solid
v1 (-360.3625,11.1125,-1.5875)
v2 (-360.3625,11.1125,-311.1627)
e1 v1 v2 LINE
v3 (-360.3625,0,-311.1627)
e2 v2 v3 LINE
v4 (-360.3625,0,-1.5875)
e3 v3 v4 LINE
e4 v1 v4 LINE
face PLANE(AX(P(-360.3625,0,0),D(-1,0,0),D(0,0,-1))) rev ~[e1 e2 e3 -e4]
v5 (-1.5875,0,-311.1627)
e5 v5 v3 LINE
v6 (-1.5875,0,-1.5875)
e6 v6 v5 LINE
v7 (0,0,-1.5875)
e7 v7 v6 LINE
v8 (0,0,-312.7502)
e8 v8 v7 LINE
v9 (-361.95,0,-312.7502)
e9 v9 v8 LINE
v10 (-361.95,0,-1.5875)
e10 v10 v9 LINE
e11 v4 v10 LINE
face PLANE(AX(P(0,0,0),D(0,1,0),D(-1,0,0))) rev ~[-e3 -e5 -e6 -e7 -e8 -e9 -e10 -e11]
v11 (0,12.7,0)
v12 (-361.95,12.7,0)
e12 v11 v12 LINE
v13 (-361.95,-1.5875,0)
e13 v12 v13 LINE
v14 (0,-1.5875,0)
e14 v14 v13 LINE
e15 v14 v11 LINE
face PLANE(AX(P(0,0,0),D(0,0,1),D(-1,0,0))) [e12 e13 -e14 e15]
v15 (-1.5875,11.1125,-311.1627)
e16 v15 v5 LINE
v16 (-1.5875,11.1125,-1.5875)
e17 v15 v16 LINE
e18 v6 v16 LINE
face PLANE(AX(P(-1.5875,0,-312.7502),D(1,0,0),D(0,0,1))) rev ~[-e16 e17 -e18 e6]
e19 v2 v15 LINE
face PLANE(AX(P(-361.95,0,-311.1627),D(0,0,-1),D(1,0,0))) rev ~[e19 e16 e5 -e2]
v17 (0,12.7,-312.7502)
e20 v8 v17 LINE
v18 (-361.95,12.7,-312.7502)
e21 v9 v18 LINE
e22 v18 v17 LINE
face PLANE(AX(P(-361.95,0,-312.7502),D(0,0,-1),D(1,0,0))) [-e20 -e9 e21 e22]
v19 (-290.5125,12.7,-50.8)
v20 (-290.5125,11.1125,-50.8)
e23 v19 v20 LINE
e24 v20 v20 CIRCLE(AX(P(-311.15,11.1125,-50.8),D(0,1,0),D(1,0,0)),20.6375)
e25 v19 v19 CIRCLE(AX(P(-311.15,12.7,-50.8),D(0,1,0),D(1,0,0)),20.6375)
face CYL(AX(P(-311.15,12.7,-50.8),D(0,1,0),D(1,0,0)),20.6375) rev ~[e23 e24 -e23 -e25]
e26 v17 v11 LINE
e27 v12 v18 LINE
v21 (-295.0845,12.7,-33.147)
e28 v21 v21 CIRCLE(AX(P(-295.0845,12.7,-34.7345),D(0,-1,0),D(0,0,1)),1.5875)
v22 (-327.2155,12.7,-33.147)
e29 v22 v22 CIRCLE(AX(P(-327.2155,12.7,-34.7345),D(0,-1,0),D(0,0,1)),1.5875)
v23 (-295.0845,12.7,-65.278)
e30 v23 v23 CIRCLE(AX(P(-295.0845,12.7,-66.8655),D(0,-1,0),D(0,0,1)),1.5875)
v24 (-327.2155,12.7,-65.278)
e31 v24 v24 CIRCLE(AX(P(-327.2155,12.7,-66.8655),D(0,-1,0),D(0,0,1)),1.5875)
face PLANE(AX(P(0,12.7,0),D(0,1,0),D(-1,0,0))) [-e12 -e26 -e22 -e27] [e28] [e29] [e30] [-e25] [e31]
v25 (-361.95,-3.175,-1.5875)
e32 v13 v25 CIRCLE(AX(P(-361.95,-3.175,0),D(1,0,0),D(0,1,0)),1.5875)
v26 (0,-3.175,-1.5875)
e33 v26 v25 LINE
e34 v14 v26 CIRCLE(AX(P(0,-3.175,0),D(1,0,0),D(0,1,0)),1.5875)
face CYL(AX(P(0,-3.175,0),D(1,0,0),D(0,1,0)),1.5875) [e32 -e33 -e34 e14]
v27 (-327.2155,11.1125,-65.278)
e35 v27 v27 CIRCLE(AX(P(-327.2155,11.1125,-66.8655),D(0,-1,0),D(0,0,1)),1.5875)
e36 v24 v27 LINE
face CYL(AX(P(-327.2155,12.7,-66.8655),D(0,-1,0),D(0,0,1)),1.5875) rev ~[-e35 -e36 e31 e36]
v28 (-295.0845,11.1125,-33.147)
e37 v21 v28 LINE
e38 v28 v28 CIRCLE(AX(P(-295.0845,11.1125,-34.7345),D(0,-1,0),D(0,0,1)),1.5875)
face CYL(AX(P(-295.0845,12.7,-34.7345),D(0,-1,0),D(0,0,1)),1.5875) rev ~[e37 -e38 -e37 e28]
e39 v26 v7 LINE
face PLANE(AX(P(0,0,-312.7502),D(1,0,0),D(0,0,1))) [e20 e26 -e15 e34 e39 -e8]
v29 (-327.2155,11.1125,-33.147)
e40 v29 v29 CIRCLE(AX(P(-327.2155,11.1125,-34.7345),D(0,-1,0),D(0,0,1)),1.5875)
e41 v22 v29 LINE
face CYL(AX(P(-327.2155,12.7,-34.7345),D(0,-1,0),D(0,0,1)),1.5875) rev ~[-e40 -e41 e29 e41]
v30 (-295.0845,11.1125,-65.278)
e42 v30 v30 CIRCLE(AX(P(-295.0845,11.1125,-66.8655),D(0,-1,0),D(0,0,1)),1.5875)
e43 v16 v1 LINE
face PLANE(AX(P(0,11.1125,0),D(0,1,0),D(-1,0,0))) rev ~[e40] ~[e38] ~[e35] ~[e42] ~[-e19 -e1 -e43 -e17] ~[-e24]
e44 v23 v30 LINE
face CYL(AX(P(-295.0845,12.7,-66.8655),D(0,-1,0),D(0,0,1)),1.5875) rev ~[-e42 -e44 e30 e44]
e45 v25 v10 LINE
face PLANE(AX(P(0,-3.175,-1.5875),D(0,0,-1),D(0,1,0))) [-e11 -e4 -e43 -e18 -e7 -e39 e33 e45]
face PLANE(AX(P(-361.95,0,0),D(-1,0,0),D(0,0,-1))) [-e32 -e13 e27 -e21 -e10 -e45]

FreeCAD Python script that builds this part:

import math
import FreeCAD as App
import Part
import Sketcher
Q = App.Units.Quantity


def faces_at(feature, points):
    """Names of the faces that lie closest to the given points."""
    faces = feature.Shape.Faces
    near = lambda p: min(range(len(faces)), key=lambda i: faces[i].distToShape(Part.Vertex(*p))[0])
    return sorted({f"Face{near(p) + 1}" for p in points})

doc = App.newDocument("Part")
body = doc.addObject("PartDesign::Body", "Body")

sketch1 = body.newObject("Sketcher::SketchObject", "Sketch")
sketch1.AttachmentSupport = (doc.getObject("XZ_Plane"), [""])
sketch1.MapMode = "FlatFace"
sketch1.addGeometry([
    Part.LineSegment(App.Vector(-362, 0, 0), App.Vector(0, 0, 0)),
    Part.LineSegment(App.Vector(0, 0, 0), App.Vector(0, -313, 0)),
    Part.LineSegment(App.Vector(0, -313, 0), App.Vector(-362, -313, 0)),
    Part.LineSegment(App.Vector(-362, -313, 0), App.Vector(-362, 0, 0)),
], False)
sketch1.addConstraint([
    Sketcher.Constraint("Coincident", 0, 2, 1, 1),
    Sketcher.Constraint("Coincident", 1, 2, 2, 1),
    Sketcher.Constraint("Coincident", 2, 2, 3, 1),
    Sketcher.Constraint("Coincident", 3, 2, 0, 1),
    Sketcher.Constraint("Horizontal", 0),
    Sketcher.Constraint("Vertical", 1),
    Sketcher.Constraint("Horizontal", 2),
    Sketcher.Constraint("Vertical", 3),
    Sketcher.Constraint("Coincident", 0, 2, -1, 1),
    Sketcher.Constraint("DistanceX", 0, 1, 0, 2, Q("14.25 in")),
    Sketcher.Constraint("DistanceY", 1, 2, 1, 1, Q("12.313 in")),
])
pad1 = body.newObject("PartDesign::Pad", "Pad")
pad1.Profile = sketch1
pad1.Length = Q("0.5 in")
pad1.Reversed = True
doc.recompute()

thickness = body.newObject("PartDesign::Thickness", "Thickness")
thickness.Base = (pad1, faces_at(pad1, [(-120.65, 0, -104.25)]))
thickness.Value = Q("0.0625 in")
thickness.Reversed = True
thickness.Join = "Intersection"

sketch2 = body.newObject("Sketcher::SketchObject", "Sketch001")
sketch2.AttachmentSupport = (doc.getObject("YZ_Plane"), [""])
sketch2.MapMode = "FlatFace"
sketch2.addGeometry([
    Part.LineSegment(App.Vector(0, -1.6, 0), App.Vector(0, 0, 0)),
    Part.LineSegment(App.Vector(0, 0, 0), App.Vector(-1.6, 0, 0)),
    Part.ArcOfCircle(Part.Circle(App.Vector(-3.2, 0, 0), App.Vector(0, 0, 1), 1.6), math.radians(0), math.radians(270)),
    Part.LineSegment(App.Vector(-3.2, -1.6, 0), App.Vector(0, -1.6, 0)),
], False)
sketch2.addConstraint([
    Sketcher.Constraint("Coincident", 0, 2, 1, 1),
    Sketcher.Constraint("Coincident", 1, 2, 2, 1),
    Sketcher.Constraint("Tangent", 2, 2, 3, 1),
    Sketcher.Constraint("Coincident", 3, 2, 0, 1),
    Sketcher.Constraint("Vertical", 0),
    Sketcher.Constraint("Horizontal", 1),
    Sketcher.Constraint("Horizontal", 3),
    Sketcher.Constraint("Coincident", 0, 2, -1, 1),
    Sketcher.Constraint("PointOnObject", 2, 3, -1),
    Sketcher.Constraint("Equal", 1, 0),
    Sketcher.Constraint("Radius", 2, Q("0.0625 in")),
])
pad2 = body.newObject("PartDesign::Pad", "Pad001")
pad2.Profile = sketch2
pad2.Length = Q("14.25 in")
pad2.Reversed = True

sketch3 = body.newObject("Sketcher::SketchObject", "Sketch002")
sketch3.AttachmentSupport = (doc.getObject("XZ_Plane"), [""])
sketch3.MapMode = "FlatFace"
sketch3.AttachmentOffset = App.Placement(App.Vector(0, 0, -0.5 * 25.4), App.Rotation())
sketch3.addGeometry(Part.Circle(App.Vector(-311, -51, 0), App.Vector(0, 0, 1), 21), False)
sketch3.addConstraint([
    Sketcher.Constraint("Diameter", 0, Q("1.625 in")),
    Sketcher.Constraint("DistanceY", 0, 3, -1, 1, Q("2 in")),
    Sketcher.Constraint("DistanceX", 0, 3, -1, 1, Q("12.25 in")),
])
pocket1 = body.newObject("PartDesign::Pocket", "Pocket")
pocket1.Profile = sketch3
pocket1.Length = Q("0.5 in")
pocket1.Reversed = True

sketch4 = body.newObject("Sketcher::SketchObject", "Sketch003")
sketch4.AttachmentSupport = (doc.getObject("XZ_Plane"), [""])
sketch4.MapMode = "FlatFace"
sketch4.AttachmentOffset = App.Placement(App.Vector(0, 0, -0.5 * 25.4), App.Rotation())
sketch4.addGeometry([
    Part.Circle(App.Vector(-327.2, -66.9, 0), App.Vector(0, 0, 1), 1.6),
    Part.Circle(App.Vector(-295.1, -66.9, 0), App.Vector(0, 0, 1), 1.6),
    Part.Circle(App.Vector(-295.1, -34.7, 0), App.Vector(0, 0, 1), 1.6),
    Part.Circle(App.Vector(-327.2, -34.7, 0), App.Vector(0, 0, 1), 1.6),
], False)
sketch4.addConstraint([
    Sketcher.Constraint("Equal", 0, 1),
    Sketcher.Constraint("Equal", 1, 2),
    Sketcher.Constraint("Equal", 2, 3),
    Sketcher.Constraint("Horizontal", 0, 3, 1, 3),
    Sketcher.Constraint("Horizontal", 2, 3, 3, 3),
    Sketcher.Constraint("Vertical", 1, 3, 2, 3),
    Sketcher.Constraint("Vertical", 0, 3, 3, 3),
    Sketcher.Constraint("Diameter", 0, Q("0.125 in")),
    Sketcher.Constraint("DistanceX", 0, 3, 1, 3, Q("1.265 in")),
    Sketcher.Constraint("DistanceY", 1, 3, 2, 3, Q("1.265 in")),
    Sketcher.Constraint("DistanceX", 0, 3, -1, 1, Q("12.8825 in")),
    Sketcher.Constraint("DistanceY", 0, 3, -1, 1, Q("2.6325 in")),
])
doc.recompute()
hole = body.newObject("PartDesign::Hole", "Hole")
hole.Profile = sketch4
hole.ThreadType = "None"
hole.Diameter = Q("0.125 in")
hole.DepthType = "Dimension"
hole.Depth = Q("1 in")
hole.DrillPoint = "Angled"
hole.DrillPointAngle = 118
hole.Reversed = True

doc.recompute()
